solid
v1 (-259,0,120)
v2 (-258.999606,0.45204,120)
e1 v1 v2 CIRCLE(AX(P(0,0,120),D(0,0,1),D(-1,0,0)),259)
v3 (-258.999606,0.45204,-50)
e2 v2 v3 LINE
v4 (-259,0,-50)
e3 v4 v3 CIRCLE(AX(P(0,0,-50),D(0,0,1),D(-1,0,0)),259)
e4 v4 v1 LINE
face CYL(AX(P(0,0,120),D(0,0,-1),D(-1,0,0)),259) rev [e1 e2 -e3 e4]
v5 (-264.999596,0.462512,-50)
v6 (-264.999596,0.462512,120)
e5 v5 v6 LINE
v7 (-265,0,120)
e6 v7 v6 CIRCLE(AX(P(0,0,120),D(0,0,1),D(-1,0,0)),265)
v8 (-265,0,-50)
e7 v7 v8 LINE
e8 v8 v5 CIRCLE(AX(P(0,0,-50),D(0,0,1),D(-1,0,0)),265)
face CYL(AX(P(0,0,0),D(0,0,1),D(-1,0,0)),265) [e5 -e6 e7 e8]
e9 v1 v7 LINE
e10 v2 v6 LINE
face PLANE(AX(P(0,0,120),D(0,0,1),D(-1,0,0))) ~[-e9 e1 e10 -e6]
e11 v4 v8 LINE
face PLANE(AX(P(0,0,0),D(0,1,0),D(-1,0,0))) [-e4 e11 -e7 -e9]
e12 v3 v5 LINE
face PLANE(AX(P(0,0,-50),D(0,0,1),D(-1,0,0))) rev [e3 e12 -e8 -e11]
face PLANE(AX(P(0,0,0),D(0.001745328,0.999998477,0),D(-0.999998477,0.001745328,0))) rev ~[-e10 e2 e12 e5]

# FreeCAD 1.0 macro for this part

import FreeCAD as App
import Part
import Sketcher
from FreeCAD import Vector
Q = App.Units.Quantity

doc = App.newDocument("Part")
body = doc.addObject("PartDesign::Body", "Body")

# Sketch on XZ plane
sketch1 = body.newObject("Sketcher::SketchObject", "Sketch")
sketch1.AttachmentSupport = (doc.getObject("XZ_Plane"), [""])
sketch1.MapMode = "FlatFace"
sketch1.addGeometry([
    Part.LineSegment(Vector(-265, 120, 0), Vector(-259, 120, 0)),
    Part.LineSegment(Vector(-259, 120, 0), Vector(-259, -50, 0)),
    Part.LineSegment(Vector(-259, -50, 0), Vector(-265, -50, 0)),
    Part.LineSegment(Vector(-265, -50, 0), Vector(-265, 120, 0)),
], False)
sketch1.addConstraint([
    Sketcher.Constraint("Coincident", 0, 2, 1, 1),
    Sketcher.Constraint("Coincident", 1, 2, 2, 1),
    Sketcher.Constraint("Coincident", 2, 2, 3, 1),
    Sketcher.Constraint("Coincident", 3, 2, 0, 1),
    Sketcher.Constraint("Horizontal", 0),
    Sketcher.Constraint("Vertical", 1),
    Sketcher.Constraint("Horizontal", 2),
    Sketcher.Constraint("Vertical", 3),
    Sketcher.Constraint("DistanceX", 0, 1, 0, 2, Q("6 mm")),
    Sketcher.Constraint("DistanceY", -1, 1, 0, 2, Q("120 mm")),
    Sketcher.Constraint("DistanceY", 1, 2, -1, 1, Q("50 mm")),
    Sketcher.Constraint("DistanceX", 0, 2, -1, 1, Q("259 mm")),
])
revolution = body.newObject("PartDesign::Revolution", "Revolution")
revolution.Profile = sketch1
revolution.ReferenceAxis = (sketch1, ["V_Axis"])
revolution.Angle = 359.9

doc.recompute()
